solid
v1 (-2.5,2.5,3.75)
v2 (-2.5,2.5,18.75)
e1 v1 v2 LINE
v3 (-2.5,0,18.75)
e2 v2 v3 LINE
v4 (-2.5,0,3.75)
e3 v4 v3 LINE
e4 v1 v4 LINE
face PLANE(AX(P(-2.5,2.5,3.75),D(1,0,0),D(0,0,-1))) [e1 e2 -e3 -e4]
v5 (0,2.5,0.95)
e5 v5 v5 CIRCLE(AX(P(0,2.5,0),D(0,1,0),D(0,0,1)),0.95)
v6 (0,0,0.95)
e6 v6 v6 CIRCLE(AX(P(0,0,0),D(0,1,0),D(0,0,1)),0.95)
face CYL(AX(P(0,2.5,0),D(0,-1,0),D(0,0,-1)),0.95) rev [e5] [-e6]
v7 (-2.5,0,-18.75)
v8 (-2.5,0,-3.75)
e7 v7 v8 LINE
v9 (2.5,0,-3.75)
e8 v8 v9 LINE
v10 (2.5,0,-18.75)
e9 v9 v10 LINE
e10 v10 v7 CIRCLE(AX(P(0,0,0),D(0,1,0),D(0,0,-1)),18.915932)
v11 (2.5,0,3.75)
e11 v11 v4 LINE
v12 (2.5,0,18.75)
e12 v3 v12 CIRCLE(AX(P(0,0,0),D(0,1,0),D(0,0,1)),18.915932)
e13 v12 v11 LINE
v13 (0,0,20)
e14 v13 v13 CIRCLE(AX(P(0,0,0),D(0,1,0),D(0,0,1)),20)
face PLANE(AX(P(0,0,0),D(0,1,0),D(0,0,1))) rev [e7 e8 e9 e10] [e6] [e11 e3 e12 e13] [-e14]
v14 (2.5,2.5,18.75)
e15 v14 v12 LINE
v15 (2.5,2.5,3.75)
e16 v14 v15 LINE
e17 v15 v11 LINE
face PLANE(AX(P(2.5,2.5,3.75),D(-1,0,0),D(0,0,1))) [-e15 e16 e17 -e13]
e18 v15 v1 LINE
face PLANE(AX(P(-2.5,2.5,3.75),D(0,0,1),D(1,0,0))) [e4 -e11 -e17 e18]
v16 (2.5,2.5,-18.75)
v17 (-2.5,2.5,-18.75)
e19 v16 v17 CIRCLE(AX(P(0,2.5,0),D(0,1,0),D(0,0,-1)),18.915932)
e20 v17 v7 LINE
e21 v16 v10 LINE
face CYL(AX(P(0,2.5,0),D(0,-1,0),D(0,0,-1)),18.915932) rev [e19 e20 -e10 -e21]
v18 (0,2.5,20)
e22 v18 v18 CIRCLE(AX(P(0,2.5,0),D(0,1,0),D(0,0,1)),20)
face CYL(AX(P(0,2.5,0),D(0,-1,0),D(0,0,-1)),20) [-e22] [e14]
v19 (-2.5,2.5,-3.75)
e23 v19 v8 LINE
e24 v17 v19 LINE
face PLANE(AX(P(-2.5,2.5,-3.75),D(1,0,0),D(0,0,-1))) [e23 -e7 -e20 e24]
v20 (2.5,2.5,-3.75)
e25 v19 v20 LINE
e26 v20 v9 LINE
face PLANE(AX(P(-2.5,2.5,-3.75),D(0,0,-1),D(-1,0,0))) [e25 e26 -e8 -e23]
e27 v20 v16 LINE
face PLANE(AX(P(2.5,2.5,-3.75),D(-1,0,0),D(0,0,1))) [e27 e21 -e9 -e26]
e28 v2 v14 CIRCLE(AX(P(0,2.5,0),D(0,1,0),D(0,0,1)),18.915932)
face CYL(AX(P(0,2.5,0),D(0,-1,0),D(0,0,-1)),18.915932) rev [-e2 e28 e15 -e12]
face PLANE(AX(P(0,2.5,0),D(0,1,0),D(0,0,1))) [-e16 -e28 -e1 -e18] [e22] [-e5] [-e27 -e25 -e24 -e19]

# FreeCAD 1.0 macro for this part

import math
import FreeCAD as App
import Part
import Sketcher

V = App.Vector
Q = App.Units.Quantity

doc = App.newDocument("Part")
body = doc.addObject("PartDesign::Body", "Body")

# Sketch on XZ plane
sketch1 = doc.addObject("Sketcher::SketchObject", "Sketch")
body.addObject(sketch1)
sketch1.AttachmentSupport = (doc.XZ_Plane, [""])
sketch1.MapMode = "FlatFace"
sketch1.addGeometry(Part.Circle(V(0, 0, 0), V(0, 0, 1), 20), False)
sketch1.addGeometry(Part.LineSegment(V(2.5, -3.8, 0), V(-2.5, -3.8, 0)), False)
sketch1.addGeometry(Part.LineSegment(V(-2.5, -3.8, 0), V(-2.5, -18.8, 0)), False)
sketch1.addGeometry(Part.ArcOfCircle(Part.Circle(V(0, 0, 0), V(0, 0, 1), 18.9), math.radians(-97.59), math.radians(-82.41)), False)
sketch1.addGeometry(Part.LineSegment(V(2.5, -18.8, 0), V(2.5, -3.8, 0)), False)
sketch1.addGeometry(Part.Circle(V(0, 0, 0), V(0, 0, 1), 0.9), False)
sketch1.addGeometry(Part.LineSegment(V(-2.5, 3.8, 0), V(2.5, 3.8, 0)), False)
sketch1.addGeometry(Part.LineSegment(V(2.5, 3.8, 0), V(2.5, 18.8, 0)), False)
sketch1.addGeometry(Part.ArcOfCircle(Part.Circle(V(0, 0, 0), V(0, 0, 1), 18.9), math.radians(82.41), math.radians(97.59)), False)
sketch1.addGeometry(Part.LineSegment(V(-2.5, 18.8, 0), V(-2.5, 3.8, 0)), False)
sketch1.addConstraint(Sketcher.Constraint("Coincident", 1, 2, 2, 1))
sketch1.addConstraint(Sketcher.Constraint("Coincident", 2, 2, 3, 1))
sketch1.addConstraint(Sketcher.Constraint("Coincident", 3, 2, 4, 1))
sketch1.addConstraint(Sketcher.Constraint("Coincident", 4, 2, 1, 1))
sketch1.addConstraint(Sketcher.Constraint("Coincident", 6, 2, 7, 1))
sketch1.addConstraint(Sketcher.Constraint("Coincident", 7, 2, 8, 1))
sketch1.addConstraint(Sketcher.Constraint("Coincident", 8, 2, 9, 1))
sketch1.addConstraint(Sketcher.Constraint("Coincident", 9, 2, 6, 1))
sketch1.addConstraint(Sketcher.Constraint("Horizontal", 1))
sketch1.addConstraint(Sketcher.Constraint("Vertical", 2))
sketch1.addConstraint(Sketcher.Constraint("Vertical", 4))
sketch1.addConstraint(Sketcher.Constraint("Horizontal", 6))
sketch1.addConstraint(Sketcher.Constraint("Vertical", 7))
sketch1.addConstraint(Sketcher.Constraint("Vertical", 9))
sketch1.addConstraint(Sketcher.Constraint("Coincident", 0, 3, -1, 1))
sketch1.addConstraint(Sketcher.Constraint("Coincident", 3, 3, -1, 1))
sketch1.addConstraint(Sketcher.Constraint("Coincident", 5, 3, -1, 1))
sketch1.addConstraint(Sketcher.Constraint("Coincident", 8, 3, -1, 1))
sketch1.addConstraint(Sketcher.Constraint("Equal", 3, 8))
sketch1.addConstraint(Sketcher.Constraint("Symmetric", 1, 2, 6, 2, -1, 1))
sketch1.addConstraint(Sketcher.Constraint("Horizontal", 2, 2, 3, 2))
sketch1.addConstraint(Sketcher.Constraint("Horizontal", 7, 2, 8, 2))
sketch1.addConstraint(Sketcher.Constraint("Diameter", 0, Q("40 mm")))
sketch1.addConstraint(Sketcher.Constraint("Diameter", 5, Q("1.9 mm")))
sketch1.addConstraint(Sketcher.Constraint("DistanceX", 1, 2, 1, 1, Q("5 mm")))
sketch1.addConstraint(Sketcher.Constraint("DistanceY", 2, 2, 2, 1, Q("15 mm")))
sketch1.addConstraint(Sketcher.Constraint("DistanceY", 4, 2, 6, 2, Q("7.5 mm")))
pad1 = doc.addObject("PartDesign::Pad", "Pad")
body.addObject(pad1)
pad1.Profile = sketch1
pad1.Length = 2.5
pad1.Reversed = True

doc.recompute()
